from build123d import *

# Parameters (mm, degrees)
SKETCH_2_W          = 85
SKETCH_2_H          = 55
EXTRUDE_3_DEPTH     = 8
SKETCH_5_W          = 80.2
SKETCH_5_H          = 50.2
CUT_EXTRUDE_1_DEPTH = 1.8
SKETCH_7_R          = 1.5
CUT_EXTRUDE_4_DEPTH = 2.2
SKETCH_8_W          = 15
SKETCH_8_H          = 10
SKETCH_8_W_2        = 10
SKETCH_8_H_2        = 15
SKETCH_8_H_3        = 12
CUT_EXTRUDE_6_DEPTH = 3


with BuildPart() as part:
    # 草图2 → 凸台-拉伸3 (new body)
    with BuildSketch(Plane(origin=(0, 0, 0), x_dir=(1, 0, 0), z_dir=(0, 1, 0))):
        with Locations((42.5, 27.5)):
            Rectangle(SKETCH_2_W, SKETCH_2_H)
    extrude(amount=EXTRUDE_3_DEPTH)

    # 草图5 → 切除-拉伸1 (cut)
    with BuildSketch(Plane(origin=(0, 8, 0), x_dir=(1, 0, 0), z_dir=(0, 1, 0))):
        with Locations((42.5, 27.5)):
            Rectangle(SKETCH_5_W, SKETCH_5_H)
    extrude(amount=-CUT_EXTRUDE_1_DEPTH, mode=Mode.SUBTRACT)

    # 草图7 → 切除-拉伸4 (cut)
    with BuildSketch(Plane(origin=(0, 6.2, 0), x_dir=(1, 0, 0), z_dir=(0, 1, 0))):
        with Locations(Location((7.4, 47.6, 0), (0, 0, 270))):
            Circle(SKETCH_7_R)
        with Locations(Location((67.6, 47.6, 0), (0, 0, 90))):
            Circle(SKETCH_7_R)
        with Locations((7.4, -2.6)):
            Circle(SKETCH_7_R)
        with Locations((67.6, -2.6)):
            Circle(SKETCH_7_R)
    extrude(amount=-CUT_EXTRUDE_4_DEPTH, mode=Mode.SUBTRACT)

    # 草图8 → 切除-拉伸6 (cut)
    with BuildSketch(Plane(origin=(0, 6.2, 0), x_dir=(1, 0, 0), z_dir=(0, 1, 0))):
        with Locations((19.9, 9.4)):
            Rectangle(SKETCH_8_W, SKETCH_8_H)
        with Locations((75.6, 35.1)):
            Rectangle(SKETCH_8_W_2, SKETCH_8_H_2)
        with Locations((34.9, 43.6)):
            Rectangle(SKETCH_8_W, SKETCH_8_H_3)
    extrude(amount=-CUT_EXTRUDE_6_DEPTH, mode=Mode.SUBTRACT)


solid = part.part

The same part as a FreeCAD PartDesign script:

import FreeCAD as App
import Part
import Sketcher

V = App.Vector


def add_polygon(sketch, points):
    """Adds a closed chain of lines whose ends are joined by coincident constraints."""
    first, n = sketch.GeometryCount, len(points)
    for a, b in zip(points, points[1:] + points[:1]):
        sketch.addGeometry(Part.LineSegment(App.Vector(*a, 0), App.Vector(*b, 0)), False)
    for i in range(n):
        sketch.addConstraint(Sketcher.Constraint("Coincident", first + i, 2, first + (i + 1) % n, 1))

doc = App.newDocument("Part")
body = doc.addObject("PartDesign::Body", "Body")

# Sketch on XZ plane
sketch1 = body.newObject("Sketcher::SketchObject", "Sketch")
sketch1.AttachmentSupport = (doc.getObject("XZ_Plane"), [""])
sketch1.MapMode = "FlatFace"
add_polygon(sketch1, [(0, -55), (0, 0), (85, 0), (85, -55)])  # lines 0-3
sketch1.addConstraint([
    Sketcher.Constraint("Vertical", 0),
    Sketcher.Constraint("Horizontal", 1),
    Sketcher.Constraint("Vertical", 2),
    Sketcher.Constraint("Horizontal", 3),
    Sketcher.Constraint("Coincident", 0, 2, -1, 1),
    Sketcher.Constraint("DistanceX", 1, 1, 1, 2, 85.0),
    Sketcher.Constraint("DistanceY", 0, 1, 0, 2, 55.0),
])
pad1 = body.newObject("PartDesign::Pad", "Pad")
pad1.Profile = sketch1
pad1.Length = 8
pad1.Reversed = True

# Sketch on XZ plane
sketch2 = body.newObject("Sketcher::SketchObject", "Sketch001")
sketch2.AttachmentSupport = (doc.getObject("XZ_Plane"), [""])
sketch2.MapMode = "FlatFace"
sketch2.AttachmentOffset = App.Placement(V(0, 0, -8), App.Rotation())
add_polygon(sketch2, [(2, -53), (2, -2), (83, -2), (83, -53)])  # lines 0-3
sketch2.addConstraint([
    Sketcher.Constraint("Vertical", 0),
    Sketcher.Constraint("Horizontal", 1),
    Sketcher.Constraint("Vertical", 2),
    Sketcher.Constraint("Horizontal", 3),
    Sketcher.Constraint("DistanceX", 1, 1, 1, 2, 80.2),
    Sketcher.Constraint("DistanceY", 0, 1, 0, 2, 50.2),
    Sketcher.Constraint("DistanceX", -1, 1, 0, 2, 2.4),
    Sketcher.Constraint("DistanceY", 0, 2, -1, 1, 2.4),
])
pocket1 = body.newObject("PartDesign::Pocket", "Pocket")
pocket1.Profile = sketch2
pocket1.Length = 1.8
pocket1.Reversed = True

# Sketch on XZ plane
sketch3 = body.newObject("Sketcher::SketchObject", "Sketch002")
sketch3.AttachmentSupport = (doc.getObject("XZ_Plane"), [""])
sketch3.MapMode = "FlatFace"
sketch3.AttachmentOffset = App.Placement(V(0, 0, -6.2), App.Rotation())
sketch3.addGeometry([
    Part.Circle(V(7.4, -47.6, 0), V(0, 0, 1), 1.5),
    Part.Circle(V(67.6, -47.6, 0), V(0, 0, 1), 1.5),
    Part.Circle(V(7.4, 2.6, 0), V(0, 0, 1), 1.5),
    Part.Circle(V(67.6, 2.6, 0), V(0, 0, 1), 1.5),
], False)
sketch3.addConstraint([
    Sketcher.Constraint("Equal", 0, 1),
    Sketcher.Constraint("Equal", 1, 2),
    Sketcher.Constraint("Equal", 2, 3),
    Sketcher.Constraint("Horizontal", 0, 3, 1, 3),
    Sketcher.Constraint("Horizontal", 2, 3, 3, 3),
    Sketcher.Constraint("Vertical", 0, 3, 2, 3),
    Sketcher.Constraint("Vertical", 1, 3, 3, 3),
    Sketcher.Constraint("Diameter", 0, 3.0),
    Sketcher.Constraint("DistanceX", -1, 1, 0, 3, 7.4),
    Sketcher.Constraint("DistanceY", 0, 3, -1, 1, 47.6),
    Sketcher.Constraint("DistanceX", -1, 1, 1, 3, 67.6),
    Sketcher.Constraint("DistanceY", -1, 1, 2, 3, 2.6),
])
pocket2 = body.newObject("PartDesign::Pocket", "Pocket001")
pocket2.Profile = sketch3
pocket2.Length = 2.2
pocket2.Reversed = True

# Sketch on XZ plane
sketch4 = body.newObject("Sketcher::SketchObject", "Sketch003")
sketch4.AttachmentSupport = (doc.getObject("XZ_Plane"), [""])
sketch4.MapMode = "FlatFace"
sketch4.AttachmentOffset = App.Placement(V(0, 0, -6.2), App.Rotation())
add_polygon(sketch4, [(12, -14), (12, -4), (27, -4), (27, -14)])  # lines 0-3
add_polygon(sketch4, [(71, -43), (71, -28), (81, -28), (81, -43)])  # lines 4-7
add_polygon(sketch4, [(27, -50), (27, -38), (42, -38), (42, -50)])  # lines 8-11
sketch4.addConstraint([
    Sketcher.Constraint("Vertical", 0),
    Sketcher.Constraint("Horizontal", 1),
    Sketcher.Constraint("Vertical", 2),
    Sketcher.Constraint("Horizontal", 3),
    Sketcher.Constraint("Vertical", 4),
    Sketcher.Constraint("Horizontal", 5),
    Sketcher.Constraint("Vertical", 6),
    Sketcher.Constraint("Horizontal", 7),
    Sketcher.Constraint("Vertical", 8),
    Sketcher.Constraint("Horizontal", 9),
    Sketcher.Constraint("Vertical", 10),
    Sketcher.Constraint("Horizontal", 11),
    Sketcher.Constraint("Vertical", 2, 2, 8, 2),
    Sketcher.Constraint("Equal", 3, 9),
    Sketcher.Constraint("Equal", 7, 0),
    Sketcher.Constraint("Equal", 11, 4),
    Sketcher.Constraint("DistanceX", 1, 1, 1, 2, 15.0),
    Sketcher.Constraint("DistanceX", 5, 1, 5, 2, 10.0),
    Sketcher.Constraint("DistanceY", 8, 1, 8, 2, 12.0),
    Sketcher.Constraint("DistanceY", 7, 2, 8, 2, 5.0),
    Sketcher.Constraint("DistanceX", -1, 1, 0, 2, 12.4),
    Sketcher.Constraint("DistanceY", 0, 2, -1, 1, 4.4),
    Sketcher.Constraint("DistanceX", -1, 1, 4, 2, 70.6),
    Sketcher.Constraint("DistanceY", 4, 2, -1, 1, 27.6),
])
pocket3 = body.newObject("PartDesign::Pocket", "Pocket002")
pocket3.Profile = sketch4
pocket3.Length = 3
pocket3.Reversed = True

doc.recompute()
